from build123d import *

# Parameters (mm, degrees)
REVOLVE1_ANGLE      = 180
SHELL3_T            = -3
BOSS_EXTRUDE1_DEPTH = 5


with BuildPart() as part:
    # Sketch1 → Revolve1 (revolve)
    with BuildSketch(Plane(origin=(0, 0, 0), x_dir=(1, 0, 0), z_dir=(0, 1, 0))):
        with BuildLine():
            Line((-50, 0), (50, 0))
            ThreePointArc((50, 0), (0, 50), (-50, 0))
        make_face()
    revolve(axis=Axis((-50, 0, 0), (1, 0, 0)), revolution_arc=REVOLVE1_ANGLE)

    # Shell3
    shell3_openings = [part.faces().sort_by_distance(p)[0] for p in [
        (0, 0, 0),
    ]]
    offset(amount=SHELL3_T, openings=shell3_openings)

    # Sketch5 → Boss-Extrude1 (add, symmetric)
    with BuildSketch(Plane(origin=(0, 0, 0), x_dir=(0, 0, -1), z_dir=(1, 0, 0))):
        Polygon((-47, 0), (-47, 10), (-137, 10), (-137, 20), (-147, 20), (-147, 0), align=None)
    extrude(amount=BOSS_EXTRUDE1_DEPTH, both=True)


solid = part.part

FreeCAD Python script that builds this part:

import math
import FreeCAD as App
import Part
import Sketcher
from FreeCAD import Vector
Q = App.Units.Quantity


def faces_at(feature, points):
    """Names of the faces that lie closest to the given points."""
    faces = feature.Shape.Faces
    near = lambda p: min(range(len(faces)), key=lambda i: faces[i].distToShape(Part.Vertex(*p))[0])
    return sorted({f"Face{near(p) + 1}" for p in points})

doc = App.newDocument("Part")
params = doc.addObject("Spreadsheet::Sheet", "Params")
for row, (alias, value) in enumerate([
    ("sketch1_radius", "50 mm"),
    ("revolution_angle", "180 deg"),
    ("thickness_wall", "3 mm"),
    ("sketch2_width", "10 mm"),
    ("sketch2_height", "90 mm"),
    ("pad1_length", "10 mm"),
], start=1):
    params.set(f"A{row}", alias)
    params.set(f"B{row}", "=" + value)
    params.setAlias(f"B{row}", alias)

body = doc.addObject("PartDesign::Body", "Body")

# Sketch on XZ plane
sketch1 = body.newObject("Sketcher::SketchObject", "Sketch")
sketch1.AttachmentSupport = (doc.getObject("XZ_Plane"), [""])
sketch1.MapMode = "FlatFace"
sketch1.addGeometry([
    Part.LineSegment(Vector(-50, 0, 0), Vector(50, 0, 0)),
    Part.ArcOfCircle(Part.Circle(Vector(0, 0, 0), Vector(0, 0, 1), 50), math.radians(180), math.radians(360)),
], False)
sketch1.addConstraint([
    Sketcher.Constraint("Coincident", 0, 1, 1, 1),
    Sketcher.Constraint("Coincident", 1, 2, 0, 2),
    Sketcher.Constraint("Horizontal", 0),
    Sketcher.Constraint("Coincident", 1, 3, -1, 1),
    Sketcher.Constraint("PointOnObject", 0, 1, -1),
    Sketcher.Constraint("Radius", 1, Q("50 mm")),
])
sketch1.setExpression("Constraints[5]", "Params.sketch1_radius")
revolution = body.newObject("PartDesign::Revolution", "Revolution")
revolution.Profile = sketch1
revolution.ReferenceAxis = (sketch1, ["H_Axis"])
revolution.setExpression("Angle", "Params.revolution_angle")
doc.recompute()

thickness = body.newObject("PartDesign::Thickness", "Thickness")
thickness.Base = (revolution, faces_at(revolution, [(0, 0, 0)]))
thickness.setExpression("Value", "Params.thickness_wall")
thickness.Reversed = True
thickness.Join = "Arc"

# Sketch on YZ plane
sketch2 = body.newObject("Sketcher::SketchObject", "Sketch001")
sketch2.AttachmentSupport = (doc.getObject("YZ_Plane"), [""])
sketch2.MapMode = "FlatFace"
sketch2.addGeometry([
    Part.LineSegment(Vector(0, 47, 0), Vector(10, 47, 0)),  # 0
    Part.LineSegment(Vector(10, 47, 0), Vector(10, 137, 0)),  # 1
    Part.LineSegment(Vector(10, 137, 0), Vector(20, 137, 0)),  # 2
    Part.LineSegment(Vector(20, 137, 0), Vector(20, 147, 0)),  # 3
    Part.LineSegment(Vector(20, 147, 0), Vector(0, 147, 0)),  # 4
    Part.LineSegment(Vector(0, 147, 0), Vector(0, 47, 0)),  # 5
], False)
sketch2.addConstraint([
    Sketcher.Constraint("Coincident", 0, 2, 1, 1),
    Sketcher.Constraint("Coincident", 1, 2, 2, 1),
    Sketcher.Constraint("Coincident", 2, 2, 3, 1),
    Sketcher.Constraint("Coincident", 3, 2, 4, 1),
    Sketcher.Constraint("Coincident", 4, 2, 5, 1),
    Sketcher.Constraint("Coincident", 5, 2, 0, 1),
    Sketcher.Constraint("Horizontal", 0),
    Sketcher.Constraint("Vertical", 1),
    Sketcher.Constraint("Horizontal", 2),
    Sketcher.Constraint("Vertical", 3),
    Sketcher.Constraint("Horizontal", 4),
    Sketcher.Constraint("Vertical", 5),
    Sketcher.Constraint("PointOnObject", 4, 2, -2),
    Sketcher.Constraint("Equal", 0, 2),
    Sketcher.Constraint("Equal", 2, 3),
    Sketcher.Constraint("DistanceX", 0, 1, 0, 2, Q("10 mm")),
    Sketcher.Constraint("DistanceY", 1, 1, 1, 2, Q("90 mm")),
    Sketcher.Constraint("DistanceY", -1, 1, 0, 2, Q("47 mm")),
])
sketch2.setExpression("Constraints[15]", "Params.sketch2_width")
sketch2.setExpression("Constraints[16]", "Params.sketch2_height")
pad1 = body.newObject("PartDesign::Pad", "Pad")
pad1.Profile = sketch2
pad1.setExpression("Length", "Params.pad1_length")
pad1.Midplane = True

doc.recompute()
